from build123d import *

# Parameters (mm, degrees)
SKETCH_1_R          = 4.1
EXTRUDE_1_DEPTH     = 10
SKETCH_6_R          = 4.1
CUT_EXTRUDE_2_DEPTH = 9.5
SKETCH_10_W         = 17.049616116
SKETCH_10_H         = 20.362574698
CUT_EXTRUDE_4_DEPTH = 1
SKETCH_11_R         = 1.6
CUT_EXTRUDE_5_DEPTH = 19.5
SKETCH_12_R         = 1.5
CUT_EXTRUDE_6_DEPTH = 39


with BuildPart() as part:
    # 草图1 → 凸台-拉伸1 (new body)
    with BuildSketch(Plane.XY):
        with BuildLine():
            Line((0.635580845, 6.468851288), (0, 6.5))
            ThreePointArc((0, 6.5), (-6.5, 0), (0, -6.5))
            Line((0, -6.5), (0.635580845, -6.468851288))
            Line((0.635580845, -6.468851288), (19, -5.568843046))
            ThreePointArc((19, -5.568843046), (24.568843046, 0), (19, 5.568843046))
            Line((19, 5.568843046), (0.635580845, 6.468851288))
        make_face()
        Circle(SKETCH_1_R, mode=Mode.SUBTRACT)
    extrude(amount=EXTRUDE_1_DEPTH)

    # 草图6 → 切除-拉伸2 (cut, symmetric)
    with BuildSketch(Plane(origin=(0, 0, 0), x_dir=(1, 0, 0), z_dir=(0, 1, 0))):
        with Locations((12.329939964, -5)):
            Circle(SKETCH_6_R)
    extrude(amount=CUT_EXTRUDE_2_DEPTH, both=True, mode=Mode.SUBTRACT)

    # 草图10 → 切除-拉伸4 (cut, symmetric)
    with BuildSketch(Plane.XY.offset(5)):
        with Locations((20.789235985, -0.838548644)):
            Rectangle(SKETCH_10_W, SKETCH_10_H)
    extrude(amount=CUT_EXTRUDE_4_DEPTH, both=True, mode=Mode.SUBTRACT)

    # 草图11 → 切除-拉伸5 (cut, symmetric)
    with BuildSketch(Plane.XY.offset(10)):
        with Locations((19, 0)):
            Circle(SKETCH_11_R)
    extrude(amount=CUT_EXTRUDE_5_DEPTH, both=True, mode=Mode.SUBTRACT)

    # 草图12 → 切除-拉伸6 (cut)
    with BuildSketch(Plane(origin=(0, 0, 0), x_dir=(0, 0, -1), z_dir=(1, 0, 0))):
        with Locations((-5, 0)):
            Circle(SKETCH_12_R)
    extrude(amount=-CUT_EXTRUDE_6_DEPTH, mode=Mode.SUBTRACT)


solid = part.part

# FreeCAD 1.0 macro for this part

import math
import FreeCAD as App
import Part
import Sketcher

V = App.Vector

doc = App.newDocument("Part")
body = doc.addObject("PartDesign::Body", "Body")

sketch1 = body.newObject("Sketcher::SketchObject", "Sketch")
sketch1.AttachmentSupport = (doc.getObject("XY_Plane"), [""])
sketch1.MapMode = "FlatFace"
sketch1.addGeometry([
    Part.LineSegment(V(0.6, 6.5, 0), V(0, 6.5, 0)),
    Part.ArcOfCircle(Part.Circle(V(0, 0, 0), V(0, 0, 1), 6.5), math.radians(90), math.radians(270)),
    Part.LineSegment(V(0, -6.5, 0), V(0.6, -6.5, 0)),
    Part.LineSegment(V(0.6, -6.5, 0), V(19, -5.6, 0)),
    Part.ArcOfCircle(Part.Circle(V(19, 0, 0), V(0, 0, 1), 5.6), math.radians(-90), math.radians(90)),
    Part.LineSegment(V(19, 5.6, 0), V(0.6, 6.5, 0)),
    Part.Circle(V(0, 0, 0), V(0, 0, 1), 4.1),
], False)
sketch1.addConstraint([
    Sketcher.Constraint("Coincident", 0, 2, 1, 1),
    Sketcher.Constraint("Coincident", 1, 2, 2, 1),
    Sketcher.Constraint("Coincident", 2, 2, 3, 1),
    Sketcher.Constraint("Coincident", 3, 2, 4, 1),
    Sketcher.Constraint("Coincident", 4, 2, 5, 1),
    Sketcher.Constraint("Coincident", 5, 2, 0, 1),
    Sketcher.Constraint("Coincident", 1, 3, -1, 1),
    Sketcher.Constraint("Coincident", 6, 3, -1, 1),
    Sketcher.Constraint("Symmetric", 3, 2, 4, 2, -1),
    Sketcher.Constraint("Symmetric", 2, 2, 5, 2, -1),
    Sketcher.Constraint("PointOnObject", 0, 2, -2),
    Sketcher.Constraint("PointOnObject", 1, 2, -2),
    Sketcher.Constraint("Parallel", 2, 3),
    Sketcher.Constraint("Vertical", 4, 3, 3, 2),
    Sketcher.Constraint("Diameter", 6, 8.2),
    Sketcher.Constraint("Radius", 1, 6.5),
    Sketcher.Constraint("DistanceX", -1, 1, 4, 3, 19.0),
    Sketcher.Constraint("Radius", 4, 5.568843),
    Sketcher.Constraint("Distance", 3, 18.38646),
])
pad1 = body.newObject("PartDesign::Pad", "Pad")
pad1.Profile = sketch1
pad1.Length = 10

sketch2 = body.newObject("Sketcher::SketchObject", "Sketch001")
sketch2.AttachmentSupport = (doc.getObject("XZ_Plane"), [""])
sketch2.MapMode = "FlatFace"
sketch2.addGeometry(Part.Circle(V(12.3, 5, 0), V(0, 0, 1), 4.1), False)
sketch2.addConstraint([
    Sketcher.Constraint("Diameter", 0, 8.2),
    Sketcher.Constraint("DistanceY", -1, 1, 0, 3, 5.0),
    Sketcher.Constraint("DistanceX", -1, 1, 0, 3, 12.32994),
])
pocket1 = body.newObject("PartDesign::Pocket", "Pocket")
pocket1.Profile = sketch2
pocket1.Length = 19
pocket1.Midplane = True

sketch3 = body.newObject("Sketcher::SketchObject", "Sketch002")
sketch3.AttachmentSupport = (doc.getObject("XY_Plane"), [""])
sketch3.MapMode = "FlatFace"
sketch3.AttachmentOffset = App.Placement(V(0, 0, 5), App.Rotation())
sketch3.addGeometry([
    Part.LineSegment(V(12, 9, 0), V(12, -11, 0)),
    Part.LineSegment(V(12, -11, 0), V(29, -11, 0)),
    Part.LineSegment(V(29, -11, 0), V(29, 9, 0)),
    Part.LineSegment(V(29, 9, 0), V(12, 9, 0)),
], False)
sketch3.addConstraint([
    Sketcher.Constraint("Coincident", 0, 2, 1, 1),
    Sketcher.Constraint("Coincident", 1, 2, 2, 1),
    Sketcher.Constraint("Coincident", 2, 2, 3, 1),
    Sketcher.Constraint("Coincident", 3, 2, 0, 1),
    Sketcher.Constraint("Vertical", 0),
    Sketcher.Constraint("Horizontal", 1),
    Sketcher.Constraint("Vertical", 2),
    Sketcher.Constraint("Horizontal", 3),
    Sketcher.Constraint("DistanceX", 1, 1, 1, 2, 17.049616),
    Sketcher.Constraint("DistanceY", 0, 2, 0, 1, 20.362575),
    Sketcher.Constraint("DistanceY", -1, 1, 2, 2, 9.342739),
    Sketcher.Constraint("DistanceX", -1, 1, 0, 2, 12.264428),
])
pocket2 = body.newObject("PartDesign::Pocket", "Pocket001")
pocket2.Profile = sketch3
pocket2.Length = 2
pocket2.Midplane = True

sketch4 = body.newObject("Sketcher::SketchObject", "Sketch003")
sketch4.AttachmentSupport = (doc.getObject("XY_Plane"), [""])
sketch4.MapMode = "FlatFace"
sketch4.AttachmentOffset = App.Placement(V(0, 0, 10), App.Rotation())
sketch4.addGeometry(Part.Circle(V(19, 0, 0), V(0, 0, 1), 1.6), False)
sketch4.addConstraint([
    Sketcher.Constraint("PointOnObject", 0, 3, -1),
    Sketcher.Constraint("Diameter", 0, 3.2),
    Sketcher.Constraint("DistanceX", -1, 1, 0, 3, 19.0),
])
pocket3 = body.newObject("PartDesign::Pocket", "Pocket002")
pocket3.Profile = sketch4
pocket3.Length = 39
pocket3.Midplane = True

sketch5 = body.newObject("Sketcher::SketchObject", "Sketch004")
sketch5.AttachmentSupport = (doc.getObject("YZ_Plane"), [""])
sketch5.MapMode = "FlatFace"
sketch5.addGeometry(Part.Circle(V(0, 5, 0), V(0, 0, 1), 1.5), False)
sketch5.addConstraint([
    Sketcher.Constraint("PointOnObject", 0, 3, -2),
    Sketcher.Constraint("Diameter", 0, 3.0),
    Sketcher.Constraint("DistanceY", -1, 1, 0, 3, 5.0),
])
pocket4 = body.newObject("PartDesign::Pocket", "Pocket003")
pocket4.Profile = sketch5
pocket4.Length = 39

doc.recompute()
